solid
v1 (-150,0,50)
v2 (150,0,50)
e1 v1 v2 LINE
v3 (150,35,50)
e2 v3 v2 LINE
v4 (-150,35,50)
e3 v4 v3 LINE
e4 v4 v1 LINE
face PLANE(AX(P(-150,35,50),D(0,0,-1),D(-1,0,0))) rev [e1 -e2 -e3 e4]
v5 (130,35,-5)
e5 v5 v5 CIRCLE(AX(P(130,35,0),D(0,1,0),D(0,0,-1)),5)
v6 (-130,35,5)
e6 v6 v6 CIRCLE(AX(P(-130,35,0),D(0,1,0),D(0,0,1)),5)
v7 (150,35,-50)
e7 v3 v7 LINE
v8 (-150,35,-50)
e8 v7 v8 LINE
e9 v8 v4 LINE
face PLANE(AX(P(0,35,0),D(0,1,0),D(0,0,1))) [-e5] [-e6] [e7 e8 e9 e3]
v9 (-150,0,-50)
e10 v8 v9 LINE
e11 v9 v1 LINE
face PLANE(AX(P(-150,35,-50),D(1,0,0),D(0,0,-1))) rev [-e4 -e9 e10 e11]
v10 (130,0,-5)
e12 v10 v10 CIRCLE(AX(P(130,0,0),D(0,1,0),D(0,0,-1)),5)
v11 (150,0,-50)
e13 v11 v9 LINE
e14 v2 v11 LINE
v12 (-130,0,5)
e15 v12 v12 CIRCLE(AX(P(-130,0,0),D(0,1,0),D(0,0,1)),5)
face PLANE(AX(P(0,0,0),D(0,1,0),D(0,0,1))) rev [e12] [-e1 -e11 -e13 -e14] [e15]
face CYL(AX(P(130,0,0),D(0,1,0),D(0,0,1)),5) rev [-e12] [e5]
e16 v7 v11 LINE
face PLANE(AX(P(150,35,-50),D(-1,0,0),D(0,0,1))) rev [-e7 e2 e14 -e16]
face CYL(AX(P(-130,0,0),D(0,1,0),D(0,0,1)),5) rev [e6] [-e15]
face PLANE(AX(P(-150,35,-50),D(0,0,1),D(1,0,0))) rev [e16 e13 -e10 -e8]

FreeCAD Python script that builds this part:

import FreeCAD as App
import Part
import Sketcher
from FreeCAD import Vector

doc = App.newDocument("Part")
body = doc.addObject("PartDesign::Body", "Body")

sketch1 = body.newObject("Sketcher::SketchObject", "Sketch")
sketch1.AttachmentSupport = (doc.getObject("XZ_Plane"), [""])
sketch1.MapMode = "FlatFace"
sketch1.addGeometry([
    Part.LineSegment(Vector(-150, -50, 0), Vector(-150, 50, 0)),
    Part.LineSegment(Vector(-150, 50, 0), Vector(150, 50, 0)),
    Part.LineSegment(Vector(150, 50, 0), Vector(150, -50, 0)),
    Part.LineSegment(Vector(150, -50, 0), Vector(-150, -50, 0)),
], False)
sketch1.addConstraint([
    Sketcher.Constraint("Coincident", 0, 2, 1, 1),
    Sketcher.Constraint("Coincident", 1, 2, 2, 1),
    Sketcher.Constraint("Coincident", 2, 2, 3, 1),
    Sketcher.Constraint("Coincident", 3, 2, 0, 1),
    Sketcher.Constraint("Vertical", 0),
    Sketcher.Constraint("Horizontal", 1),
    Sketcher.Constraint("Vertical", 2),
    Sketcher.Constraint("Horizontal", 3),
    Sketcher.Constraint("Symmetric", 0, 2, 2, 2, -1, 1),
    Sketcher.Constraint("DistanceX", 1, 1, 1, 2, 300.0),
    Sketcher.Constraint("DistanceY", 0, 1, 0, 2, 100.0),
])
pad1 = body.newObject("PartDesign::Pad", "Pad")
pad1.Profile = sketch1
pad1.Length = 35
pad1.Reversed = True

sketch2 = body.newObject("Sketcher::SketchObject", "Sketch001")
sketch2.AttachmentSupport = (doc.getObject("XZ_Plane"), [""])
sketch2.MapMode = "FlatFace"
sketch2.AttachmentOffset = App.Placement(Vector(0, 0, -35), App.Rotation())
sketch2.addGeometry([
    Part.Circle(Vector(-130, 0, 0), Vector(0, 0, 1), 5),
    Part.Circle(Vector(130, 0, 0), Vector(0, 0, 1), 5),
], False)
sketch2.addConstraint([
    Sketcher.Constraint("Equal", 0, 1),
    Sketcher.Constraint("Symmetric", 0, 3, 1, 3, -1, 1),
    Sketcher.Constraint("PointOnObject", 0, 3, -1),
    Sketcher.Constraint("Diameter", 0, 10.0),
    Sketcher.Constraint("DistanceX", 0, 3, -1, 1, 130.0),
])
pocket1 = body.newObject("PartDesign::Pocket", "Pocket")
pocket1.Profile = sketch2
pocket1.Type = "ThroughAll"
pocket1.Reversed = True

doc.recompute()
